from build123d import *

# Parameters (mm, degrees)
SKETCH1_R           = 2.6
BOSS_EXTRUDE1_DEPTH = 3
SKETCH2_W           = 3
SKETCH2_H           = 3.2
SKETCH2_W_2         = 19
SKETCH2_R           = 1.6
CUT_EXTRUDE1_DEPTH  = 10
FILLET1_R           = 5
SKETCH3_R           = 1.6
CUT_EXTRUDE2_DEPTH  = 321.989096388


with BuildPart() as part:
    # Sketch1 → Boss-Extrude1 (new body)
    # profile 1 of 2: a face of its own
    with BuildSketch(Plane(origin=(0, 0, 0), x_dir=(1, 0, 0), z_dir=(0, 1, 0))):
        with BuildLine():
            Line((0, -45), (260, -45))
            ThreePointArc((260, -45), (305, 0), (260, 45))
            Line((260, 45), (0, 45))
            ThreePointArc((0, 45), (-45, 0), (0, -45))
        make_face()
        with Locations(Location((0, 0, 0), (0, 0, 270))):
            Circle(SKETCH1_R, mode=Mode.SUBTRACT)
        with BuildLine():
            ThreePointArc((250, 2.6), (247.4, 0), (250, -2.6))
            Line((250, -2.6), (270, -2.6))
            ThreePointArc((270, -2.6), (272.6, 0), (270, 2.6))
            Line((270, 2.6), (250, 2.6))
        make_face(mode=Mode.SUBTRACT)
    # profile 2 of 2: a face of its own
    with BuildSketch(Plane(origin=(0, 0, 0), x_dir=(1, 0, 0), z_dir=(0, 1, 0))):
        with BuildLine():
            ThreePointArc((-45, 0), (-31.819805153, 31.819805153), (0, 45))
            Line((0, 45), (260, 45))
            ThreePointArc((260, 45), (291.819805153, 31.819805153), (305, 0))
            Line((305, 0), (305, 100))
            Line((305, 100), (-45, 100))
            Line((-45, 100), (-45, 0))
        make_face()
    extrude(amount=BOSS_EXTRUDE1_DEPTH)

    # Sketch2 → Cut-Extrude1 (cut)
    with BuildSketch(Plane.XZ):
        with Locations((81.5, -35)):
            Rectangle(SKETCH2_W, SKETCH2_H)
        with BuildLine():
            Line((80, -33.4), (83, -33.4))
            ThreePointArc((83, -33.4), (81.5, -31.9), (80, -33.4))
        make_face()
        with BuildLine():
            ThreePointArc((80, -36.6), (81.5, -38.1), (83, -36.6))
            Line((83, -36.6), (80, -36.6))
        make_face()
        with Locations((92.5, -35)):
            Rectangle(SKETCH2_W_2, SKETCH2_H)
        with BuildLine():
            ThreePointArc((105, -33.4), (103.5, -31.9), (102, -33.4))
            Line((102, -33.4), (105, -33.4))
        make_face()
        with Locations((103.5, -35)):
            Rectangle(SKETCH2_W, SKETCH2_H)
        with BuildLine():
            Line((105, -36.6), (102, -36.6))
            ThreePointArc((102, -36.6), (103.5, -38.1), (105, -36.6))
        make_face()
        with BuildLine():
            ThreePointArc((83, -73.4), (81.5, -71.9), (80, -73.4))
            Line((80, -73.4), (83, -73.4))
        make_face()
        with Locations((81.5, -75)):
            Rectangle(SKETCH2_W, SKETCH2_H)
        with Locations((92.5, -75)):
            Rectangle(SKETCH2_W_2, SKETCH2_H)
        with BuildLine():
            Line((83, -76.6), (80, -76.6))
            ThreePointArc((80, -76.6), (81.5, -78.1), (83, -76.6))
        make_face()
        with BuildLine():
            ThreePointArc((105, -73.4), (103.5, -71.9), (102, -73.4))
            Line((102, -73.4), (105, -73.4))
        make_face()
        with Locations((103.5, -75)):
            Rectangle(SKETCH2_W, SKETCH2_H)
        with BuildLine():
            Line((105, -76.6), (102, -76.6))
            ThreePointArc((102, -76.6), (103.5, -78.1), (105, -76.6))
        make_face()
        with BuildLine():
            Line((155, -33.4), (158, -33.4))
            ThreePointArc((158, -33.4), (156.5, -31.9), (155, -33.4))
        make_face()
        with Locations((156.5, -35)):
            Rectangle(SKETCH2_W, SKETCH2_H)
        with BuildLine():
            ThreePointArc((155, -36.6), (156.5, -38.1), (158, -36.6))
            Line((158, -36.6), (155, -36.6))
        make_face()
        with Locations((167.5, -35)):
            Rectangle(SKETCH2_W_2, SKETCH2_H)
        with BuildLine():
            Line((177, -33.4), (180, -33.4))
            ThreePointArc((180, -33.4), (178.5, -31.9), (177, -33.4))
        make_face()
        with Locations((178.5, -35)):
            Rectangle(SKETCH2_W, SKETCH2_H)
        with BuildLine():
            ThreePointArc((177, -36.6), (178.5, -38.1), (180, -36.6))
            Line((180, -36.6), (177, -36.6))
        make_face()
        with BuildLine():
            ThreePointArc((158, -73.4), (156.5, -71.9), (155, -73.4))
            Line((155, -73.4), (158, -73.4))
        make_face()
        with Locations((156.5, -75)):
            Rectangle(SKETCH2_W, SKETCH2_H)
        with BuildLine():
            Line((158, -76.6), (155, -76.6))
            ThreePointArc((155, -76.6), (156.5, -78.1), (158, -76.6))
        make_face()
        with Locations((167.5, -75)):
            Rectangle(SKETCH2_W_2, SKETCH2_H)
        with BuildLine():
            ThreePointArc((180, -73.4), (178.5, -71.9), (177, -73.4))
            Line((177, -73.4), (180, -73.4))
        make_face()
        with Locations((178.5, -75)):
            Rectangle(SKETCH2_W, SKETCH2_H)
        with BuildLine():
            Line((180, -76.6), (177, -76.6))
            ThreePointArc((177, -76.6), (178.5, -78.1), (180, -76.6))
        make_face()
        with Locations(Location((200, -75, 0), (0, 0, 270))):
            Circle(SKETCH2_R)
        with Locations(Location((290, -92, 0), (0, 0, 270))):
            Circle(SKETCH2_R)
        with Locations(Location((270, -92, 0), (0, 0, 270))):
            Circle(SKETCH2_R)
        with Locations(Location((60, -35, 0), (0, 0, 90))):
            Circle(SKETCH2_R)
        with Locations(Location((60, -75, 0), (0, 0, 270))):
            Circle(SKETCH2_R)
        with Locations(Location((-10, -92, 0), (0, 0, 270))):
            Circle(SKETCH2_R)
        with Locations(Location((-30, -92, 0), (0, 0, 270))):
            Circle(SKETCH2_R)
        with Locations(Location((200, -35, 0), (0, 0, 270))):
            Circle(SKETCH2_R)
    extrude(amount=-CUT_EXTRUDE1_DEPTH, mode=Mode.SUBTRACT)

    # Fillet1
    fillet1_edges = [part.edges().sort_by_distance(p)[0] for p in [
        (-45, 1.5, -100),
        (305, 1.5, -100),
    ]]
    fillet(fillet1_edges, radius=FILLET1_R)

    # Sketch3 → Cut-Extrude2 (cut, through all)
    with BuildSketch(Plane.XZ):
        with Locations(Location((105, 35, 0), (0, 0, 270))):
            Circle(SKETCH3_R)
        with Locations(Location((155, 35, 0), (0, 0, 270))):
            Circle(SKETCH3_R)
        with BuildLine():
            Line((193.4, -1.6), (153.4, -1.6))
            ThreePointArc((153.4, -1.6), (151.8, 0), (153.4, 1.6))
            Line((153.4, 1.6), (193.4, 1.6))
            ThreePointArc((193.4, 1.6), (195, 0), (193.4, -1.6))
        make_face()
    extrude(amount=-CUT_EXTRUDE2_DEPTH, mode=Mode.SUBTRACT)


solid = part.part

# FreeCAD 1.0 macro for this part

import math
import FreeCAD as App
import Part
import Sketcher
from FreeCAD import Vector


def edges_at(feature, points):
    """Names of the edges that pass closest to the given points."""
    edges = feature.Shape.Edges
    near = lambda p: min(range(len(edges)), key=lambda i: edges[i].distToShape(Part.Vertex(*p))[0])
    return sorted({f"Edge{near(p) + 1}" for p in points})

doc = App.newDocument("Part")
body = doc.addObject("PartDesign::Body", "Body")

# Sketch on XZ plane
sketch1 = body.newObject("Sketcher::SketchObject", "Sketch")
sketch1.AttachmentSupport = (doc.getObject("XZ_Plane"), [""])
sketch1.MapMode = "FlatFace"
sketch1.addGeometry([
    Part.LineSegment(Vector(0, 45, 0), Vector(260, 45, 0)),  # 0
    Part.ArcOfCircle(Part.Circle(Vector(260, 0, 0), Vector(0, 0, 1), 45), math.radians(0), math.radians(90)),  # 1
    Part.LineSegment(Vector(305, 0, 0), Vector(305, -100, 0)),  # 2
    Part.LineSegment(Vector(305, -100, 0), Vector(-45, -100, 0)),  # 3
    Part.LineSegment(Vector(-45, -100, 0), Vector(-45, 0, 0)),  # 4
    Part.ArcOfCircle(Part.Circle(Vector(0, 0, 0), Vector(0, 0, 1), 45), math.radians(90), math.radians(180)),  # 5
    Part.Circle(Vector(0, 0, 0), Vector(0, 0, 1), 2.6),  # 6
    Part.ArcOfCircle(Part.Circle(Vector(250, 0, 0), Vector(0, 0, 1), 2.6), math.radians(90), math.radians(270)),  # 7
    Part.LineSegment(Vector(250, -2.6, 0), Vector(270, -2.6, 0)),  # 8
    Part.ArcOfCircle(Part.Circle(Vector(270, 0, 0), Vector(0, 0, 1), 2.6), math.radians(-90), math.radians(90)),  # 9
    Part.LineSegment(Vector(270, 2.6, 0), Vector(250, 2.6, 0)),  # 10
], False)
sketch1.addConstraint([
    Sketcher.Constraint("Tangent", 0, 2, 1, 2),
    Sketcher.Constraint("Tangent", 1, 1, 2, 1),
    Sketcher.Constraint("Coincident", 2, 2, 3, 1),
    Sketcher.Constraint("Coincident", 3, 2, 4, 1),
    Sketcher.Constraint("Tangent", 4, 2, 5, 2),
    Sketcher.Constraint("Tangent", 5, 1, 0, 1),
    Sketcher.Constraint("Tangent", 7, 2, 8, 1),
    Sketcher.Constraint("Tangent", 8, 2, 9, 1),
    Sketcher.Constraint("Tangent", 9, 2, 10, 1),
    Sketcher.Constraint("Tangent", 10, 2, 7, 1),
    Sketcher.Constraint("Horizontal", 0),
    Sketcher.Constraint("Vertical", 2),
    Sketcher.Constraint("Horizontal", 3),
    Sketcher.Constraint("Vertical", 4),
    Sketcher.Constraint("Horizontal", 8),
    Sketcher.Constraint("Horizontal", 10),
    Sketcher.Constraint("Coincident", 5, 3, -1, 1),
    Sketcher.Constraint("Coincident", 6, 3, -1, 1),
    Sketcher.Constraint("Equal", 1, 5),
    Sketcher.Constraint("Equal", 6, 7),
    Sketcher.Constraint("PointOnObject", 7, 3, -1),
    Sketcher.Constraint("Radius", 1, 45.0),
    Sketcher.Constraint("Diameter", 6, 5.2),
    Sketcher.Constraint("DistanceX", 0, 1, 0, 2, 260.0),
    Sketcher.Constraint("DistanceX", 8, 1, 8, 2, 20.0),
    Sketcher.Constraint("DistanceY", 2, 2, 2, 1, 100.0),
    Sketcher.Constraint("DistanceX", -1, 1, 7, 3, 250.0),
])
pad1 = body.newObject("PartDesign::Pad", "Pad")
pad1.Profile = sketch1
pad1.Length = 3
pad1.Reversed = True

# Sketch on XZ plane
sketch2 = body.newObject("Sketcher::SketchObject", "Sketch001")
sketch2.AttachmentSupport = (doc.getObject("XZ_Plane"), [""])
sketch2.MapMode = "FlatFace"
sketch2.addGeometry([
    Part.LineSegment(Vector(80, -33.4, 0), Vector(80, -36.6, 0)),  # 0
    Part.ArcOfCircle(Part.Circle(Vector(81.5, -36.6, 0), Vector(0, 0, 1), 1.5), math.radians(180), math.radians(360)),  # 1
    Part.LineSegment(Vector(83, -36.6, 0), Vector(102, -36.6, 0)),  # 2
    Part.ArcOfCircle(Part.Circle(Vector(103.5, -36.6, 0), Vector(0, 0, 1), 1.5), math.radians(180), math.radians(360)),  # 3
    Part.LineSegment(Vector(105, -36.6, 0), Vector(105, -33.4, 0)),  # 4
    Part.ArcOfCircle(Part.Circle(Vector(103.5, -33.4, 0), Vector(0, 0, 1), 1.5), math.radians(0), math.radians(180)),  # 5
    Part.LineSegment(Vector(102, -33.4, 0), Vector(83, -33.4, 0)),  # 6
    Part.ArcOfCircle(Part.Circle(Vector(81.5, -33.4, 0), Vector(0, 0, 1), 1.5), math.radians(0), math.radians(180)),  # 7
    Part.ArcOfCircle(Part.Circle(Vector(81.5, -73.4, 0), Vector(0, 0, 1), 1.5), math.radians(0), math.radians(180)),  # 8
    Part.LineSegment(Vector(80, -73.4, 0), Vector(80, -76.6, 0)),  # 9
    Part.ArcOfCircle(Part.Circle(Vector(81.5, -76.6, 0), Vector(0, 0, 1), 1.5), math.radians(180), math.radians(360)),  # 10
    Part.LineSegment(Vector(83, -76.6, 0), Vector(102, -76.6, 0)),  # 11
    Part.ArcOfCircle(Part.Circle(Vector(103.5, -76.6, 0), Vector(0, 0, 1), 1.5), math.radians(180), math.radians(360)),  # 12
    Part.LineSegment(Vector(105, -76.6, 0), Vector(105, -73.4, 0)),  # 13
    Part.ArcOfCircle(Part.Circle(Vector(103.5, -73.4, 0), Vector(0, 0, 1), 1.5), math.radians(0), math.radians(180)),  # 14
    Part.LineSegment(Vector(102, -73.4, 0), Vector(83, -73.4, 0)),  # 15
    Part.ArcOfCircle(Part.Circle(Vector(156.5, -33.4, 0), Vector(0, 0, 1), 1.5), math.radians(0), math.radians(180)),  # 16
    Part.LineSegment(Vector(155, -33.4, 0), Vector(155, -36.6, 0)),  # 17
    Part.ArcOfCircle(Part.Circle(Vector(156.5, -36.6, 0), Vector(0, 0, 1), 1.5), math.radians(180), math.radians(360)),  # 18
    Part.LineSegment(Vector(158, -36.6, 0), Vector(177, -36.6, 0)),  # 19
    Part.ArcOfCircle(Part.Circle(Vector(178.5, -36.6, 0), Vector(0, 0, 1), 1.5), math.radians(180), math.radians(360)),  # 20
    Part.LineSegment(Vector(180, -36.6, 0), Vector(180, -33.4, 0)),  # 21
    Part.ArcOfCircle(Part.Circle(Vector(178.5, -33.4, 0), Vector(0, 0, 1), 1.5), math.radians(0), math.radians(180)),  # 22
    Part.LineSegment(Vector(177, -33.4, 0), Vector(158, -33.4, 0)),  # 23
    Part.ArcOfCircle(Part.Circle(Vector(156.5, -73.4, 0), Vector(0, 0, 1), 1.5), math.radians(0), math.radians(180)),  # 24
    Part.LineSegment(Vector(155, -73.4, 0), Vector(155, -76.6, 0)),  # 25
    Part.ArcOfCircle(Part.Circle(Vector(156.5, -76.6, 0), Vector(0, 0, 1), 1.5), math.radians(180), math.radians(360)),  # 26
    Part.LineSegment(Vector(158, -76.6, 0), Vector(177, -76.6, 0)),  # 27
    Part.ArcOfCircle(Part.Circle(Vector(178.5, -76.6, 0), Vector(0, 0, 1), 1.5), math.radians(180), math.radians(360)),  # 28
    Part.LineSegment(Vector(180, -76.6, 0), Vector(180, -73.4, 0)),  # 29
    Part.ArcOfCircle(Part.Circle(Vector(178.5, -73.4, 0), Vector(0, 0, 1), 1.5), math.radians(0), math.radians(180)),  # 30
    Part.LineSegment(Vector(177, -73.4, 0), Vector(158, -73.4, 0)),  # 31
    Part.Circle(Vector(200, -75, 0), Vector(0, 0, 1), 1.6),  # 32
    Part.Circle(Vector(290, -92, 0), Vector(0, 0, 1), 1.6),  # 33
    Part.Circle(Vector(270, -92, 0), Vector(0, 0, 1), 1.6),  # 34
    Part.Circle(Vector(60, -35, 0), Vector(0, 0, 1), 1.6),  # 35
    Part.Circle(Vector(60, -75, 0), Vector(0, 0, 1), 1.6),  # 36
    Part.Circle(Vector(-10, -92, 0), Vector(0, 0, 1), 1.6),  # 37
    Part.Circle(Vector(-30, -92, 0), Vector(0, 0, 1), 1.6),  # 38
    Part.Circle(Vector(200, -35, 0), Vector(0, 0, 1), 1.6),  # 39
], False)
sketch2.addConstraint([
    Sketcher.Constraint("Tangent", 0, 2, 1, 1),
    Sketcher.Constraint("Coincident", 1, 2, 2, 1),
    Sketcher.Constraint("Coincident", 2, 2, 3, 1),
    Sketcher.Constraint("Tangent", 3, 2, 4, 1),
    Sketcher.Constraint("Tangent", 4, 2, 5, 1),
    Sketcher.Constraint("Coincident", 5, 2, 6, 1),
    Sketcher.Constraint("Coincident", 6, 2, 7, 1),
    Sketcher.Constraint("Tangent", 7, 2, 0, 1),
    Sketcher.Constraint("Tangent", 8, 2, 9, 1),
    Sketcher.Constraint("Tangent", 9, 2, 10, 1),
    Sketcher.Constraint("Coincident", 10, 2, 11, 1),
    Sketcher.Constraint("Coincident", 11, 2, 12, 1),
    Sketcher.Constraint("Tangent", 12, 2, 13, 1),
    Sketcher.Constraint("Tangent", 13, 2, 14, 1),
    Sketcher.Constraint("Coincident", 14, 2, 15, 1),
    Sketcher.Constraint("Coincident", 15, 2, 8, 1),
    Sketcher.Constraint("Tangent", 16, 2, 17, 1),
    Sketcher.Constraint("Tangent", 17, 2, 18, 1),
    Sketcher.Constraint("Coincident", 18, 2, 19, 1),
    Sketcher.Constraint("Coincident", 19, 2, 20, 1),
    Sketcher.Constraint("Tangent", 20, 2, 21, 1),
    Sketcher.Constraint("Tangent", 21, 2, 22, 1),
    Sketcher.Constraint("Coincident", 22, 2, 23, 1),
    Sketcher.Constraint("Coincident", 23, 2, 16, 1),
    Sketcher.Constraint("Tangent", 24, 2, 25, 1),
    Sketcher.Constraint("Tangent", 25, 2, 26, 1),
    Sketcher.Constraint("Coincident", 26, 2, 27, 1),
    Sketcher.Constraint("Coincident", 27, 2, 28, 1),
    Sketcher.Constraint("Tangent", 28, 2, 29, 1),
    Sketcher.Constraint("Tangent", 29, 2, 30, 1),
    Sketcher.Constraint("Coincident", 30, 2, 31, 1),
    Sketcher.Constraint("Coincident", 31, 2, 24, 1),
    Sketcher.Constraint("Vertical", 0),
    Sketcher.Constraint("Horizontal", 2),
    Sketcher.Constraint("Vertical", 4),
    Sketcher.Constraint("Horizontal", 6),
    Sketcher.Constraint("Vertical", 9),
    Sketcher.Constraint("Horizontal", 11),
    Sketcher.Constraint("Vertical", 13),
    Sketcher.Constraint("Horizontal", 15),
    Sketcher.Constraint("Vertical", 17),
    Sketcher.Constraint("Horizontal", 19),
    Sketcher.Constraint("Vertical", 21),
    Sketcher.Constraint("Horizontal", 23),
    Sketcher.Constraint("Vertical", 25),
    Sketcher.Constraint("Horizontal", 27),
    Sketcher.Constraint("Vertical", 29),
    Sketcher.Constraint("Horizontal", 31),
    Sketcher.Constraint("Equal", 1, 3),
    Sketcher.Constraint("Equal", 3, 5),
    Sketcher.Constraint("Equal", 5, 7),
    Sketcher.Constraint("Equal", 7, 8),
    Sketcher.Constraint("Equal", 8, 10),
    Sketcher.Constraint("Equal", 10, 12),
    Sketcher.Constraint("Equal", 12, 14),
    Sketcher.Constraint("Equal", 14, 16),
    Sketcher.Constraint("Equal", 16, 18),
    Sketcher.Constraint("Equal", 18, 20),
    Sketcher.Constraint("Equal", 20, 22),
    Sketcher.Constraint("Equal", 22, 24),
    Sketcher.Constraint("Equal", 24, 26),
    Sketcher.Constraint("Equal", 26, 28),
    Sketcher.Constraint("Equal", 28, 30),
    Sketcher.Constraint("Equal", 32, 33),
    Sketcher.Constraint("Equal", 33, 34),
    Sketcher.Constraint("Equal", 34, 35),
    Sketcher.Constraint("Equal", 35, 36),
    Sketcher.Constraint("Equal", 36, 37),
    Sketcher.Constraint("Equal", 37, 38),
    Sketcher.Constraint("Equal", 38, 39),
    Sketcher.Constraint("Horizontal", 1, 3, 3, 3),
    Sketcher.Constraint("Horizontal", 5, 3, 7, 3),
    Sketcher.Constraint("Horizontal", 10, 3, 12, 3),
    Sketcher.Constraint("Horizontal", 8, 3, 14, 3),
    Sketcher.Constraint("Horizontal", 7, 3, 16, 3),
    Sketcher.Constraint("Horizontal", 3, 3, 18, 3),
    Sketcher.Constraint("Horizontal", 18, 3, 20, 3),
    Sketcher.Constraint("Horizontal", 16, 3, 22, 3),
    Sketcher.Constraint("Horizontal", 14, 3, 24, 3),
    Sketcher.Constraint("Horizontal", 12, 3, 26, 3),
    Sketcher.Constraint("Horizontal", 26, 3, 28, 3),
    Sketcher.Constraint("Horizontal", 24, 3, 30, 3),
    Sketcher.Constraint("Horizontal", 33, 3, 34, 3),
    Sketcher.Constraint("Horizontal", 32, 3, 36, 3),
    Sketcher.Constraint("Horizontal", 34, 3, 37, 3),
    Sketcher.Constraint("Horizontal", 37, 3, 38, 3),
    Sketcher.Constraint("Horizontal", 35, 3, 39, 3),
    Sketcher.Constraint("Horizontal", 0, 2, 1, 2),
    Sketcher.Constraint("Horizontal", 4, 2, 5, 2),
    Sketcher.Constraint("Horizontal", 9, 2, 10, 2),
    Sketcher.Constraint("Horizontal", 13, 2, 14, 2),
    Sketcher.Constraint("Horizontal", 17, 2, 18, 2),
    Sketcher.Constraint("Horizontal", 21, 2, 22, 2),
    Sketcher.Constraint("Horizontal", 25, 2, 26, 2),
    Sketcher.Constraint("Horizontal", 29, 2, 30, 2),
    Sketcher.Constraint("Vertical", 7, 3, 8, 3),
    Sketcher.Constraint("Vertical", 5, 3, 12, 3),
    Sketcher.Constraint("Vertical", 18, 3, 24, 3),
    Sketcher.Constraint("Vertical", 22, 3, 28, 3),
    Sketcher.Constraint("Vertical", 35, 3, 36, 3),
    Sketcher.Constraint("Vertical", 32, 3, 39, 3),
    Sketcher.Constraint("Equal", 15, 19),
    Sketcher.Constraint("Equal", 4, 9),
    Sketcher.Constraint("Diameter", 32, 3.2),
    Sketcher.Constraint("Radius", 1, 1.5),
    Sketcher.Constraint("DistanceX", 2, 1, 2, 2, 19.0),
    Sketcher.Constraint("DistanceY", 0, 2, 0, 1, 3.2),
    Sketcher.Constraint("DistanceX", -1, 1, 32, 3, 200.0),
    Sketcher.Constraint("DistanceY", 32, 3, -1, 1, 75.0),
    Sketcher.Constraint("DistanceX", -1, 1, 33, 3, 290.0),
    Sketcher.Constraint("DistanceY", 33, 3, -1, 1, 92.0),
    Sketcher.Constraint("DistanceX", -1, 1, 34, 3, 270.0),
    Sketcher.Constraint("DistanceX", -1, 1, 35, 3, 60.0),
    Sketcher.Constraint("DistanceY", 35, 3, -1, 1, 35.0),
    Sketcher.Constraint("DistanceX", 37, 3, -1, 1, 10.0),
    Sketcher.Constraint("DistanceX", 38, 3, -1, 1, 30.0),
    Sketcher.Constraint("DistanceX", -1, 1, 0, 2, 80.0),
    Sketcher.Constraint("DistanceX", -1, 1, 16, 2, 155.0),
    Sketcher.Constraint("DistanceY", 8, 3, 7, 3, 40.0),
    Sketcher.Constraint("DistanceY", 1, 3, -1, 1, 36.6),
])
pocket1 = body.newObject("PartDesign::Pocket", "Pocket")
pocket1.Profile = sketch2
pocket1.Length = 10
doc.recompute()

fillet = body.newObject("PartDesign::Fillet", "Fillet")
fillet.Base = (pocket1, edges_at(pocket1, [(-45, 1.5, -100), (305, 1.5, -100)]))
fillet.Radius = 5

# Sketch on XZ plane
sketch3 = body.newObject("Sketcher::SketchObject", "Sketch002")
sketch3.AttachmentSupport = (doc.getObject("XZ_Plane"), [""])
sketch3.MapMode = "FlatFace"
sketch3.addGeometry([
    Part.Circle(Vector(105, 35, 0), Vector(0, 0, 1), 1.6),  # 0
    Part.Circle(Vector(155, 35, 0), Vector(0, 0, 1), 1.6),  # 1
    Part.LineSegment(Vector(153.4, -1.6, 0), Vector(193.4, -1.6, 0)),  # 2
    Part.ArcOfCircle(Part.Circle(Vector(193.4, 0, 0), Vector(0, 0, 1), 1.6), math.radians(-90), math.radians(90)),  # 3
    Part.LineSegment(Vector(193.4, 1.6, 0), Vector(153.4, 1.6, 0)),  # 4
    Part.ArcOfCircle(Part.Circle(Vector(153.4, 0, 0), Vector(0, 0, 1), 1.6), math.radians(90), math.radians(270)),  # 5
], False)
sketch3.addConstraint([
    Sketcher.Constraint("Tangent", 2, 2, 3, 1),
    Sketcher.Constraint("Tangent", 3, 2, 4, 1),
    Sketcher.Constraint("Tangent", 4, 2, 5, 1),
    Sketcher.Constraint("Tangent", 5, 2, 2, 1),
    Sketcher.Constraint("Horizontal", 2),
    Sketcher.Constraint("Horizontal", 4),
    Sketcher.Constraint("Equal", 0, 1),
    Sketcher.Constraint("Equal", 1, 3),
    Sketcher.Constraint("PointOnObject", 3, 3, -1),
    Sketcher.Constraint("Horizontal", 0, 3, 1, 3),
    Sketcher.Constraint("Diameter", 0, 3.2),
    Sketcher.Constraint("DistanceX", 2, 1, 2, 2, 40.0),
    Sketcher.Constraint("DistanceX", -1, 1, 0, 3, 105.0),
    Sketcher.Constraint("DistanceY", -1, 1, 0, 3, 35.0),
    Sketcher.Constraint("DistanceX", -1, 1, 1, 3, 155.0),
    Sketcher.Constraint("DistanceX", -1, 1, 3, 3, 193.4),
])
pocket2 = body.newObject("PartDesign::Pocket", "Pocket001")
pocket2.Profile = sketch3
pocket2.Type = "ThroughAll"

doc.recompute()
